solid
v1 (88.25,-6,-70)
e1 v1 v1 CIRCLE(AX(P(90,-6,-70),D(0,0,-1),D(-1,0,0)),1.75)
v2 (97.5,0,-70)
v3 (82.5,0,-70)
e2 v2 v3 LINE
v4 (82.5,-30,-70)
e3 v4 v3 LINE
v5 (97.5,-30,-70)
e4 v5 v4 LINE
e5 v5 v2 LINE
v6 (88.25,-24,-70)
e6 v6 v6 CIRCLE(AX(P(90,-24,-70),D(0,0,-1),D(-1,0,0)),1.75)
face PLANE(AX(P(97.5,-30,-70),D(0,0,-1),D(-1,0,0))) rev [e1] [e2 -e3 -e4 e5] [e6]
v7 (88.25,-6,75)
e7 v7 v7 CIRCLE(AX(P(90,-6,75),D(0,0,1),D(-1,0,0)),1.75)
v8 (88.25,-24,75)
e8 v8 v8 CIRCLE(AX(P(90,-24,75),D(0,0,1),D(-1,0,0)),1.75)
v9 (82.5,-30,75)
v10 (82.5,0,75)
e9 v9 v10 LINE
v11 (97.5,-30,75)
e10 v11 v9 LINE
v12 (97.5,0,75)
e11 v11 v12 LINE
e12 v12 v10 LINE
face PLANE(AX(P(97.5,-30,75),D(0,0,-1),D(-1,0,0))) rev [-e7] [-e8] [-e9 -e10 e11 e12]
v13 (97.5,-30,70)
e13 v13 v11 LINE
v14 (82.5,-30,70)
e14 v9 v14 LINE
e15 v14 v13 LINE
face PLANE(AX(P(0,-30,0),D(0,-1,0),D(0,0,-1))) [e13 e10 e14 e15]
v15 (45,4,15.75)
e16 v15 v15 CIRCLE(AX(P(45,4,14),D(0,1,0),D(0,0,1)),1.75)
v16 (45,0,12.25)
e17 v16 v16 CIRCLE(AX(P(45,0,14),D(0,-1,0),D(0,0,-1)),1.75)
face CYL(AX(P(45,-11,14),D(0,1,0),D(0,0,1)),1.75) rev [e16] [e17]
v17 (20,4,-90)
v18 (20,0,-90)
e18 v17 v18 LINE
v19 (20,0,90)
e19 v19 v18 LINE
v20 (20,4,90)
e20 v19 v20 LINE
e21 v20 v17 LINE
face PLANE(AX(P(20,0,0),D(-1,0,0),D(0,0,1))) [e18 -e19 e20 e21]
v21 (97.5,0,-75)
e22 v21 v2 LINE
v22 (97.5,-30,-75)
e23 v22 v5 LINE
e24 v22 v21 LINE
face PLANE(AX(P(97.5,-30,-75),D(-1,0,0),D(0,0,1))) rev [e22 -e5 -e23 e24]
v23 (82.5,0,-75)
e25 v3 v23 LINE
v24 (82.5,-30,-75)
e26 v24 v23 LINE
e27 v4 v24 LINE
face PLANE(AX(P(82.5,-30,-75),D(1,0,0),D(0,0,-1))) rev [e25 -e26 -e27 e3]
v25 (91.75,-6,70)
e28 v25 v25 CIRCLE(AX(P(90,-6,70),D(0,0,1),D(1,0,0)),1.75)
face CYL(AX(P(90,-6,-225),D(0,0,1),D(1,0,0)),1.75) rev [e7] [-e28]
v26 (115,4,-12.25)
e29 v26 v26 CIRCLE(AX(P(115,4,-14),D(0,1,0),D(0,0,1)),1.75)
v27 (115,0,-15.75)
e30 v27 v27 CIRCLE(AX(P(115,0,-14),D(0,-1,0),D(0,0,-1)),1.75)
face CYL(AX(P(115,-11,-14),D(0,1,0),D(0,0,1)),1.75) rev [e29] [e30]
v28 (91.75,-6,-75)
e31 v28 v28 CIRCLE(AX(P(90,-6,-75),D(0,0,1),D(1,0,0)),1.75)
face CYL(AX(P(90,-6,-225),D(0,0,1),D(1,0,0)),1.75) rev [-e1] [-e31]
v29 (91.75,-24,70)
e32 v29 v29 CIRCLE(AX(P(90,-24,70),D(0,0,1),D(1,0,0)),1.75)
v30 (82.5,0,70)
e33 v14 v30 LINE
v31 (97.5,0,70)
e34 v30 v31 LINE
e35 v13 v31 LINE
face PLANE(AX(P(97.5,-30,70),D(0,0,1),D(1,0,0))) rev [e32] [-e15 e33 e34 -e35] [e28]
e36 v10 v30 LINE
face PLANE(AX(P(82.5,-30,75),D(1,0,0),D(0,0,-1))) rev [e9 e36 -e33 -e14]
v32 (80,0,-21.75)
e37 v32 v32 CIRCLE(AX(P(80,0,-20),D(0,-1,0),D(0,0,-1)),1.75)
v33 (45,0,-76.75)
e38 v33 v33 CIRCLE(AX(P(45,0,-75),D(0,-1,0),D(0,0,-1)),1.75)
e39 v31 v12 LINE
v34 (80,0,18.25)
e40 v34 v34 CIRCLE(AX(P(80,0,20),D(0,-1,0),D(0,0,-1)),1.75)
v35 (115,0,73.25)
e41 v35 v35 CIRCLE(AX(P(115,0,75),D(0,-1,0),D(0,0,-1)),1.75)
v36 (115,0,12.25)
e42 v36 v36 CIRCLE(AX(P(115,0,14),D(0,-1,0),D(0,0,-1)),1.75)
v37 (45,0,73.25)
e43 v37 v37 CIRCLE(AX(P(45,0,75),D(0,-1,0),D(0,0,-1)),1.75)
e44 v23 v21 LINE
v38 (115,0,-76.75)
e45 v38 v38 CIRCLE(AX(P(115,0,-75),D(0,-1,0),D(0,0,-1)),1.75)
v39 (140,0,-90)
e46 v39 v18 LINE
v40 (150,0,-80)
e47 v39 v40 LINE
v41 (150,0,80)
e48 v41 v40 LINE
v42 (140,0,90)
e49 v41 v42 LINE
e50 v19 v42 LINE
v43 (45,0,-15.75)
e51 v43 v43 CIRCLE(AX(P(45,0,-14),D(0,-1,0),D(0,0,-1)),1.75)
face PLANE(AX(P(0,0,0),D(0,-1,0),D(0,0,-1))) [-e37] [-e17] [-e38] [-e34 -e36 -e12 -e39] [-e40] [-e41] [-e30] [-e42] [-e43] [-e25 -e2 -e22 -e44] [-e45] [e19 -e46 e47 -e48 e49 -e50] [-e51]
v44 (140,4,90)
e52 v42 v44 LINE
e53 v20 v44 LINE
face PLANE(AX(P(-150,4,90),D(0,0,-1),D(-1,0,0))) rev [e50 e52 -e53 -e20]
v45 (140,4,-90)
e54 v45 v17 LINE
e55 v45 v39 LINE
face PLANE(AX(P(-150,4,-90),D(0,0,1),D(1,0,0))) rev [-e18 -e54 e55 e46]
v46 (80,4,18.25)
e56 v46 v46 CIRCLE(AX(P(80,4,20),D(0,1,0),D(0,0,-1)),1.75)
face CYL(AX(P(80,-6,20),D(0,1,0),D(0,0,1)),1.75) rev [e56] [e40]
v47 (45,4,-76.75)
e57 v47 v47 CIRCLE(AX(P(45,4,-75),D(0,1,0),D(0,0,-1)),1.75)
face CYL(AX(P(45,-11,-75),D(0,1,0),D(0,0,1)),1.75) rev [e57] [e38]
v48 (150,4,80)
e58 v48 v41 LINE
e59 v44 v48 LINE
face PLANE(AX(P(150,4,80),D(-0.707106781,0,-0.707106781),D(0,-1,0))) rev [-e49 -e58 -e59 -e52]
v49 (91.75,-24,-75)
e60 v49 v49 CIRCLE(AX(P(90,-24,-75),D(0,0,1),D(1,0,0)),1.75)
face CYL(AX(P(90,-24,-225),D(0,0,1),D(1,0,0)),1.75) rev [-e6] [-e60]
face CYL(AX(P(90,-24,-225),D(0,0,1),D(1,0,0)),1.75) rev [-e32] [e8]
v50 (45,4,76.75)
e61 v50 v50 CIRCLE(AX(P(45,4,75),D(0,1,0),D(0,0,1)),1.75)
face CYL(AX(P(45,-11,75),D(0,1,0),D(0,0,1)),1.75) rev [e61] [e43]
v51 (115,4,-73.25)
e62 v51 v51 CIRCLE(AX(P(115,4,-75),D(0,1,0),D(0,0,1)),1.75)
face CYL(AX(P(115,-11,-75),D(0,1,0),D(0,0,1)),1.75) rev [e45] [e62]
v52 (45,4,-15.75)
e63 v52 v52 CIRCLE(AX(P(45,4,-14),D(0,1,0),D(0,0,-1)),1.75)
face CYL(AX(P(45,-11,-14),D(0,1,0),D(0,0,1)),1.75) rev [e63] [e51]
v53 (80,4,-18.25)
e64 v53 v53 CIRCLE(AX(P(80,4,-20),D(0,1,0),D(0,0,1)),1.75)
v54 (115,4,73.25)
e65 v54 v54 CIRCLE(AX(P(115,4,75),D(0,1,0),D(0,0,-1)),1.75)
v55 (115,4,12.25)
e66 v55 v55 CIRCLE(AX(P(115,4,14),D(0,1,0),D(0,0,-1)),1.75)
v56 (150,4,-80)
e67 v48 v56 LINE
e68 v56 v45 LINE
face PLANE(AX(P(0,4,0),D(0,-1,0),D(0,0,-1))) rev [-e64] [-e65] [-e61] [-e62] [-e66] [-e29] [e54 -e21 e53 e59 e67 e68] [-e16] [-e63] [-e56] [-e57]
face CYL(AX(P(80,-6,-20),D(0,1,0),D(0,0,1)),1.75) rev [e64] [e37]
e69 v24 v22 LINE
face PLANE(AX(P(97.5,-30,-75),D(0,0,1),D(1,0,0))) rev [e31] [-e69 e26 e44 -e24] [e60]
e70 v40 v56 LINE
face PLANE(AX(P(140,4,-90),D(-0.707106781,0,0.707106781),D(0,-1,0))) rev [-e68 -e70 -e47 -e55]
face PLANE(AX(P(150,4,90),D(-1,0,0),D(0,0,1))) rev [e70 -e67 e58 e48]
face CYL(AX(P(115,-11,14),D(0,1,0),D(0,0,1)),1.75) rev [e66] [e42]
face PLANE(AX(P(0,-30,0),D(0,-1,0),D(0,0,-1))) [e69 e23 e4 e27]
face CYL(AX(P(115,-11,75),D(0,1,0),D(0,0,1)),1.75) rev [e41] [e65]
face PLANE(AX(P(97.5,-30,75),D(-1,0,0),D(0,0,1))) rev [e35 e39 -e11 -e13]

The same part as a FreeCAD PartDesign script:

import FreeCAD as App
import Part
import Sketcher


def edges_at(feature, points):
    """Names of the edges that pass closest to the given points."""
    edges = feature.Shape.Edges
    near = lambda p: min(range(len(edges)), key=lambda i: edges[i].distToShape(Part.Vertex(*p))[0])
    return sorted({f"Edge{near(p) + 1}" for p in points})


def add_polygon(sketch, points):
    """Adds a closed chain of lines whose ends are joined by coincident constraints."""
    first, n = sketch.GeometryCount, len(points)
    for a, b in zip(points, points[1:] + points[:1]):
        sketch.addGeometry(Part.LineSegment(App.Vector(*a, 0), App.Vector(*b, 0)), False)
    for i in range(n):
        sketch.addConstraint(Sketcher.Constraint("Coincident", first + i, 2, first + (i + 1) % n, 1))

doc = App.newDocument("Part")
body = doc.addObject("PartDesign::Body", "Body")

sketch1 = body.newObject("Sketcher::SketchObject", "Sketch")
sketch1.AttachmentSupport = (doc.getObject("XZ_Plane"), [""])
sketch1.MapMode = "FlatFace"
add_polygon(sketch1, [(-150, -90), (-150, 90), (150, 90), (150, -90)])
sketch1.addConstraint(Sketcher.Constraint("Vertical", 0))
sketch1.addConstraint(Sketcher.Constraint("Horizontal", 1))
sketch1.addConstraint(Sketcher.Constraint("Vertical", 2))
sketch1.addConstraint(Sketcher.Constraint("Horizontal", 3))
sketch1.addConstraint(Sketcher.Constraint("Symmetric", 0, 2, 2, 2, -1, 1))
sketch1.addConstraint(Sketcher.Constraint("DistanceX", 1, 1, 1, 2, 300.0))
sketch1.addConstraint(Sketcher.Constraint("DistanceY", 0, 1, 0, 2, 180.0))
pad1 = body.newObject("PartDesign::Pad", "Pad")
pad1.Profile = sketch1
pad1.Length = 4
pad1.Reversed = True
doc.recompute()

fillet = body.newObject("PartDesign::Fillet", "Fillet")
fillet.Base = (pad1, edges_at(pad1, [(-150, 2, 90), (-150, 2, -90)]))
fillet.Radius = 10
doc.recompute()

chamfer = body.newObject("PartDesign::Chamfer", "Chamfer")
chamfer.Base = (fillet, edges_at(fillet, [(150, 2, 90), (150, 2, -90)]))
chamfer.Size = 10

sketch2 = body.newObject("Sketcher::SketchObject", "Sketch001")
sketch2.AttachmentSupport = (doc.getObject("XZ_Plane"), [""])
sketch2.MapMode = "FlatFace"
sketch2.AttachmentOffset = App.Placement(App.Vector(0, 0, -4), App.Rotation())
sketch2.addGeometry(Part.Circle(App.Vector(115, -75, 0), App.Vector(0, 0, 1), 1.75), False)
sketch2.addGeometry(Part.Circle(App.Vector(115, -14, 0), App.Vector(0, 0, 1), 1.75), False)
sketch2.addGeometry(Part.Circle(App.Vector(115, 14, 0), App.Vector(0, 0, 1), 1.75), False)
sketch2.addGeometry(Part.Circle(App.Vector(115, 75, 0), App.Vector(0, 0, 1), 1.75), False)
sketch2.addGeometry(Part.Circle(App.Vector(45, 75, 0), App.Vector(0, 0, 1), 1.75), False)
sketch2.addGeometry(Part.Circle(App.Vector(45, 14, 0), App.Vector(0, 0, 1), 1.75), False)
sketch2.addGeometry(Part.Circle(App.Vector(45, -14, 0), App.Vector(0, 0, 1), 1.75), False)
sketch2.addGeometry(Part.Circle(App.Vector(45, -75, 0), App.Vector(0, 0, 1), 1.75), False)
sketch2.addConstraint(Sketcher.Constraint("Equal", 0, 1))
sketch2.addConstraint(Sketcher.Constraint("Equal", 1, 2))
sketch2.addConstraint(Sketcher.Constraint("Equal", 2, 3))
sketch2.addConstraint(Sketcher.Constraint("Equal", 3, 4))
sketch2.addConstraint(Sketcher.Constraint("Equal", 4, 5))
sketch2.addConstraint(Sketcher.Constraint("Equal", 5, 6))
sketch2.addConstraint(Sketcher.Constraint("Equal", 6, 7))
sketch2.addConstraint(Sketcher.Constraint("Symmetric", 1, 3, 2, 3, -1))
sketch2.addConstraint(Sketcher.Constraint("Symmetric", 0, 3, 3, 3, -1))
sketch2.addConstraint(Sketcher.Constraint("Symmetric", 5, 3, 6, 3, -1))
sketch2.addConstraint(Sketcher.Constraint("Symmetric", 4, 3, 7, 3, -1))
sketch2.addConstraint(Sketcher.Constraint("Horizontal", 3, 3, 4, 3))
sketch2.addConstraint(Sketcher.Constraint("Horizontal", 2, 3, 5, 3))
sketch2.addConstraint(Sketcher.Constraint("Vertical", 0, 3, 1, 3))
sketch2.addConstraint(Sketcher.Constraint("Vertical", 4, 3, 5, 3))
sketch2.addConstraint(Sketcher.Constraint("Diameter", 0, 3.5))
sketch2.addConstraint(Sketcher.Constraint("DistanceX", -1, 1, 0, 3, 115.0))
sketch2.addConstraint(Sketcher.Constraint("DistanceY", 0, 3, -1, 1, 75.0))
sketch2.addConstraint(Sketcher.Constraint("DistanceY", 1, 3, -1, 1, 14.0))
sketch2.addConstraint(Sketcher.Constraint("DistanceX", -1, 1, 4, 3, 45.0))
pocket1 = body.newObject("PartDesign::Pocket", "Pocket")
pocket1.Profile = sketch2
pocket1.Length = 15
pocket1.Reversed = True

sketch3 = body.newObject("Sketcher::SketchObject", "Sketch002")
sketch3.AttachmentSupport = (doc.getObject("XZ_Plane"), [""])
sketch3.MapMode = "FlatFace"
sketch3.AttachmentOffset = App.Placement(App.Vector(0, 0, -4), App.Rotation())
sketch3.addGeometry(Part.Circle(App.Vector(-37, -18.5, 0), App.Vector(0, 0, 1), 1.75), False)
sketch3.addGeometry(Part.Circle(App.Vector(0, -18.5, 0), App.Vector(0, 0, 1), 1.75), False)
sketch3.addGeometry(Part.Circle(App.Vector(-37, 18.5, 0), App.Vector(0, 0, 1), 1.75), False)
sketch3.addGeometry(Part.Circle(App.Vector(0, 18.5, 0), App.Vector(0, 0, 1), 1.75), False)
add_polygon(sketch3, [(-20, 33.5), (-20, 43.5), (-5, 43.5), (-5, 33.5)])
add_polygon(sketch3, [(-20, -43.5), (-20, -33.5), (-5, -33.5), (-5, -43.5)])
sketch3.addConstraint(Sketcher.Constraint("Vertical", 4))
sketch3.addConstraint(Sketcher.Constraint("Horizontal", 5))
sketch3.addConstraint(Sketcher.Constraint("Vertical", 6))
sketch3.addConstraint(Sketcher.Constraint("Horizontal", 7))
sketch3.addConstraint(Sketcher.Constraint("Vertical", 8))
sketch3.addConstraint(Sketcher.Constraint("Horizontal", 9))
sketch3.addConstraint(Sketcher.Constraint("Vertical", 10))
sketch3.addConstraint(Sketcher.Constraint("Horizontal", 11))
sketch3.addConstraint(Sketcher.Constraint("Equal", 0, 1))
sketch3.addConstraint(Sketcher.Constraint("Equal", 1, 2))
sketch3.addConstraint(Sketcher.Constraint("Equal", 2, 3))
sketch3.addConstraint(Sketcher.Constraint("Symmetric", 1, 3, 3, 3, -1, 1))
sketch3.addConstraint(Sketcher.Constraint("Symmetric", 0, 3, 2, 3, -1))
sketch3.addConstraint(Sketcher.Constraint("Symmetric", 7, 2, 8, 2, -1))
sketch3.addConstraint(Sketcher.Constraint("Symmetric", 5, 2, 10, 2, -1))
sketch3.addConstraint(Sketcher.Constraint("PointOnObject", 1, 3, -2))
sketch3.addConstraint(Sketcher.Constraint("Horizontal", 0, 3, 1, 3))
sketch3.addConstraint(Sketcher.Constraint("Diameter", 0, 3.5))
sketch3.addConstraint(Sketcher.Constraint("DistanceX", 5, 1, 5, 2, 15.0))
sketch3.addConstraint(Sketcher.Constraint("DistanceY", 4, 1, 4, 2, 10.0))
sketch3.addConstraint(Sketcher.Constraint("DistanceX", 0, 3, -1, 1, 37.0))
sketch3.addConstraint(Sketcher.Constraint("DistanceX", 4, 2, -1, 1, 20.0))
sketch3.addConstraint(Sketcher.Constraint("DistanceY", 0, 3, 2, 3, 37.0))
sketch3.addConstraint(Sketcher.Constraint("DistanceY", 2, 3, 4, 2, 25.0))
pocket2 = body.newObject("PartDesign::Pocket", "Pocket001")
pocket2.Profile = sketch3
pocket2.Length = 15
pocket2.Reversed = True

sketch4 = body.newObject("Sketcher::SketchObject", "Sketch003")
sketch4.AttachmentSupport = (doc.getObject("XZ_Plane"), [""])
sketch4.MapMode = "FlatFace"
sketch4.AttachmentOffset = App.Placement(App.Vector(0, 0, -4), App.Rotation())
sketch4.addGeometry(Part.Circle(App.Vector(-33, -70, 0), App.Vector(0, 0, 1), 1.75), False)
sketch4.addGeometry(Part.Circle(App.Vector(-3, -54, 0), App.Vector(0, 0, 1), 1.75), False)
sketch4.addGeometry(Part.Circle(App.Vector(-33, 54, 0), App.Vector(0, 0, 1), 1.75), False)
sketch4.addGeometry(Part.Circle(App.Vector(-3, 70, 0), App.Vector(0, 0, 1), 1.75), False)
sketch4.addConstraint(Sketcher.Constraint("Equal", 0, 1))
sketch4.addConstraint(Sketcher.Constraint("Equal", 1, 2))
sketch4.addConstraint(Sketcher.Constraint("Equal", 2, 3))
sketch4.addConstraint(Sketcher.Constraint("Vertical", 0, 3, 2, 3))
sketch4.addConstraint(Sketcher.Constraint("Vertical", 1, 3, 3, 3))
sketch4.addConstraint(Sketcher.Constraint("Diameter", 0, 3.5))
sketch4.addConstraint(Sketcher.Constraint("DistanceX", 0, 3, -1, 1, 33.0))
sketch4.addConstraint(Sketcher.Constraint("DistanceY", 0, 3, -1, 1, 70.0))
sketch4.addConstraint(Sketcher.Constraint("DistanceX", 1, 3, -1, 1, 3.0))
sketch4.addConstraint(Sketcher.Constraint("DistanceY", 1, 3, -1, 1, 54.0))
sketch4.addConstraint(Sketcher.Constraint("DistanceY", -1, 1, 2, 3, 54.0))
sketch4.addConstraint(Sketcher.Constraint("DistanceY", -1, 1, 3, 3, 70.0))
pocket3 = body.newObject("PartDesign::Pocket", "Pocket002")
pocket3.Profile = sketch4
pocket3.Length = 15
pocket3.Reversed = True

sketch5 = body.newObject("Sketcher::SketchObject", "Sketch004")
sketch5.AttachmentSupport = (doc.getObject("XZ_Plane"), [""])
sketch5.MapMode = "FlatFace"
sketch5.AttachmentOffset = App.Placement(App.Vector(0, 0, -4), App.Rotation())
sketch5.addGeometry(Part.Circle(App.Vector(-73, -65, 0), App.Vector(0, 0, 1), 1.55), False)
sketch5.addGeometry(Part.Circle(App.Vector(-73, -19, 0), App.Vector(0, 0, 1), 1.55), False)
sketch5.addGeometry(Part.Circle(App.Vector(-91, -19, 0), App.Vector(0, 0, 1), 1.55), False)
sketch5.addConstraint(Sketcher.Constraint("Equal", 0, 1))
sketch5.addConstraint(Sketcher.Constraint("Equal", 1, 2))
sketch5.addConstraint(Sketcher.Constraint("Horizontal", 1, 3, 2, 3))
sketch5.addConstraint(Sketcher.Constraint("Vertical", 0, 3, 1, 3))
sketch5.addConstraint(Sketcher.Constraint("Diameter", 0, 3.1))
sketch5.addConstraint(Sketcher.Constraint("DistanceX", 0, 3, -1, 1, 73.0))
sketch5.addConstraint(Sketcher.Constraint("DistanceY", 0, 3, -1, 1, 65.0))
sketch5.addConstraint(Sketcher.Constraint("DistanceY", 1, 3, -1, 1, 19.0))
sketch5.addConstraint(Sketcher.Constraint("DistanceX", 2, 3, -1, 1, 91.0))
pocket4 = body.newObject("PartDesign::Pocket", "Pocket003")
pocket4.Profile = sketch5
pocket4.Length = 15
pocket4.Reversed = True

sketch6 = body.newObject("Sketcher::SketchObject", "Sketch005")
sketch6.AttachmentSupport = (doc.getObject("XZ_Plane"), [""])
sketch6.MapMode = "FlatFace"
sketch6.AttachmentOffset = App.Placement(App.Vector(0, 0, -4), App.Rotation())
sketch6.addGeometry(Part.Circle(App.Vector(-103, 54, 0), App.Vector(0, 0, 1), 1.75), False)
sketch6.addGeometry(Part.Circle(App.Vector(-68, 54, 0), App.Vector(0, 0, 1), 1.75), False)
sketch6.addConstraint(Sketcher.Constraint("Equal", 0, 1))
sketch6.addConstraint(Sketcher.Constraint("Horizontal", 0, 3, 1, 3))
sketch6.addConstraint(Sketcher.Constraint("Diameter", 0, 3.5))
sketch6.addConstraint(Sketcher.Constraint("DistanceX", 0, 3, -1, 1, 103.0))
sketch6.addConstraint(Sketcher.Constraint("DistanceY", -1, 1, 0, 3, 54.0))
sketch6.addConstraint(Sketcher.Constraint("DistanceX", 1, 3, -1, 1, 68.0))
pocket5 = body.newObject("PartDesign::Pocket", "Pocket004")
pocket5.Profile = sketch6
pocket5.Length = 15
pocket5.Reversed = True

sketch7 = body.newObject("Sketcher::SketchObject", "Sketch006")
sketch7.AttachmentSupport = (doc.getObject("XZ_Plane"), [""])
sketch7.MapMode = "FlatFace"
add_polygon(sketch7, [(-97.5, 75), (-97.5, 70), (-82.5, 70), (-82.5, 75)])
add_polygon(sketch7, [(82.5, 75), (82.5, 70), (97.5, 70), (97.5, 75)])
add_polygon(sketch7, [(82.5, -70), (82.5, -75), (97.5, -75), (97.5, -70)])
add_polygon(sketch7, [(-97.5, -70), (-97.5, -75), (-82.5, -75), (-82.5, -70)])
sketch7.addConstraint(Sketcher.Constraint("Vertical", 0))
sketch7.addConstraint(Sketcher.Constraint("Horizontal", 1))
sketch7.addConstraint(Sketcher.Constraint("Vertical", 2))
sketch7.addConstraint(Sketcher.Constraint("Horizontal", 3))
sketch7.addConstraint(Sketcher.Constraint("Vertical", 4))
sketch7.addConstraint(Sketcher.Constraint("Horizontal", 5))
sketch7.addConstraint(Sketcher.Constraint("Vertical", 6))
sketch7.addConstraint(Sketcher.Constraint("Horizontal", 7))
sketch7.addConstraint(Sketcher.Constraint("Vertical", 8))
sketch7.addConstraint(Sketcher.Constraint("Horizontal", 9))
sketch7.addConstraint(Sketcher.Constraint("Vertical", 10))
sketch7.addConstraint(Sketcher.Constraint("Horizontal", 11))
sketch7.addConstraint(Sketcher.Constraint("Vertical", 12))
sketch7.addConstraint(Sketcher.Constraint("Horizontal", 13))
sketch7.addConstraint(Sketcher.Constraint("Vertical", 14))
sketch7.addConstraint(Sketcher.Constraint("Horizontal", 15))
sketch7.addConstraint(Sketcher.Constraint("Symmetric", 2, 2, 8, 2, -1, 1))
sketch7.addConstraint(Sketcher.Constraint("Symmetric", 0, 2, 10, 2, -1, 1))
sketch7.addConstraint(Sketcher.Constraint("Symmetric", 6, 2, 12, 2, -1, 1))
sketch7.addConstraint(Sketcher.Constraint("Symmetric", 4, 2, 14, 2, -1, 1))
sketch7.addConstraint(Sketcher.Constraint("Symmetric", 1, 2, 4, 2, -2))
sketch7.addConstraint(Sketcher.Constraint("Symmetric", 3, 2, 6, 2, -2))
sketch7.addConstraint(Sketcher.Constraint("DistanceX", 1, 1, 1, 2, 15.0))
sketch7.addConstraint(Sketcher.Constraint("DistanceY", 0, 2, 0, 1, 5.0))
sketch7.addConstraint(Sketcher.Constraint("DistanceY", -1, 1, 0, 2, 70.0))
sketch7.addConstraint(Sketcher.Constraint("DistanceX", 1, 2, 4, 2, 165.0))
pad2 = body.newObject("PartDesign::Pad", "Pad001")
pad2.Profile = sketch7
pad2.Length = 30

sketch8 = body.newObject("Sketcher::SketchObject", "Sketch007")
sketch8.AttachmentSupport = (doc.getObject("XY_Plane"), [""])
sketch8.MapMode = "FlatFace"
sketch8.AttachmentOffset = App.Placement(App.Vector(0, 0, 75), App.Rotation())
sketch8.addGeometry(Part.Circle(App.Vector(-90, -24, 0), App.Vector(0, 0, 1), 1.75), False)
sketch8.addGeometry(Part.Circle(App.Vector(-90, -6, 0), App.Vector(0, 0, 1), 1.75), False)
sketch8.addGeometry(Part.Circle(App.Vector(90, -6, 0), App.Vector(0, 0, 1), 1.75), False)
sketch8.addGeometry(Part.Circle(App.Vector(90, -24, 0), App.Vector(0, 0, 1), 1.75), False)
sketch8.addConstraint(Sketcher.Constraint("Equal", 0, 1))
sketch8.addConstraint(Sketcher.Constraint("Equal", 1, 2))
sketch8.addConstraint(Sketcher.Constraint("Equal", 2, 3))
sketch8.addConstraint(Sketcher.Constraint("Symmetric", 1, 3, 2, 3, -2))
sketch8.addConstraint(Sketcher.Constraint("Symmetric", 0, 3, 3, 3, -2))
sketch8.addConstraint(Sketcher.Constraint("Vertical", 0, 3, 1, 3))
sketch8.addConstraint(Sketcher.Constraint("Diameter", 0, 3.5))
sketch8.addConstraint(Sketcher.Constraint("DistanceX", 0, 3, -1, 1, 90.0))
sketch8.addConstraint(Sketcher.Constraint("DistanceY", 0, 3, -1, 1, 24.0))
sketch8.addConstraint(Sketcher.Constraint("DistanceY", 1, 3, -1, 1, 6.0))
pocket6 = body.newObject("PartDesign::Pocket", "Pocket005")
pocket6.Profile = sketch8
pocket6.Length = 300

sketch9 = body.newObject("Sketcher::SketchObject", "Sketch008")
sketch9.AttachmentSupport = (doc.getObject("XZ_Plane"), [""])
sketch9.MapMode = "FlatFace"
sketch9.AttachmentOffset = App.Placement(App.Vector(0, 0, -4), App.Rotation())
sketch9.addGeometry(Part.Circle(App.Vector(-140, -10, 0), App.Vector(0, 0, 1), 1.75), False)
sketch9.addGeometry(Part.Circle(App.Vector(-125, -10, 0), App.Vector(0, 0, 1), 1.75), False)
sketch9.addGeometry(Part.Circle(App.Vector(-125, -30, 0), App.Vector(0, 0, 1), 1.75), False)
sketch9.addGeometry(Part.Circle(App.Vector(-140, -30, 0), App.Vector(0, 0, 1), 1.75), False)
sketch9.addGeometry(Part.Circle(App.Vector(-125, 30, 0), App.Vector(0, 0, 1), 1.75), False)
sketch9.addGeometry(Part.Circle(App.Vector(-140, 30, 0), App.Vector(0, 0, 1), 1.75), False)
sketch9.addGeometry(Part.Circle(App.Vector(-125, 10, 0), App.Vector(0, 0, 1), 1.75), False)
sketch9.addGeometry(Part.Circle(App.Vector(-140, 10, 0), App.Vector(0, 0, 1), 1.75), False)
add_polygon(sketch9, [(-100, -10), (-100, 10), (-70, 10), (-70, -10)])
sketch9.addConstraint(Sketcher.Constraint("Vertical", 8))
sketch9.addConstraint(Sketcher.Constraint("Horizontal", 9))
sketch9.addConstraint(Sketcher.Constraint("Vertical", 10))
sketch9.addConstraint(Sketcher.Constraint("Horizontal", 11))
sketch9.addConstraint(Sketcher.Constraint("Equal", 0, 1))
sketch9.addConstraint(Sketcher.Constraint("Equal", 1, 2))
sketch9.addConstraint(Sketcher.Constraint("Equal", 2, 3))
sketch9.addConstraint(Sketcher.Constraint("Equal", 3, 4))
sketch9.addConstraint(Sketcher.Constraint("Equal", 4, 5))
sketch9.addConstraint(Sketcher.Constraint("Equal", 5, 6))
sketch9.addConstraint(Sketcher.Constraint("Equal", 6, 7))
sketch9.addConstraint(Sketcher.Constraint("Symmetric", 2, 3, 4, 3, -1))
sketch9.addConstraint(Sketcher.Constraint("Symmetric", 3, 3, 5, 3, -1))
sketch9.addConstraint(Sketcher.Constraint("Symmetric", 1, 3, 6, 3, -1))
sketch9.addConstraint(Sketcher.Constraint("Symmetric", 0, 3, 7, 3, -1))
sketch9.addConstraint(Sketcher.Constraint("Horizontal", 0, 3, 1, 3))
sketch9.addConstraint(Sketcher.Constraint("Horizontal", 2, 3, 3, 3))
sketch9.addConstraint(Sketcher.Constraint("Horizontal", 7, 3, 8, 2))
sketch9.addConstraint(Sketcher.Constraint("Horizontal", 1, 3, 10, 2))
sketch9.addConstraint(Sketcher.Constraint("Vertical", 1, 3, 2, 3))
sketch9.addConstraint(Sketcher.Constraint("Vertical", 0, 3, 3, 3))
sketch9.addConstraint(Sketcher.Constraint("Diameter", 0, 3.5))
sketch9.addConstraint(Sketcher.Constraint("DistanceX", 9, 1, 9, 2, 30.0))
sketch9.addConstraint(Sketcher.Constraint("DistanceY", 8, 1, 8, 2, 20.0))
sketch9.addConstraint(Sketcher.Constraint("DistanceX", 0, 3, -1, 1, 140.0))
sketch9.addConstraint(Sketcher.Constraint("DistanceX", 1, 3, -1, 1, 125.0))
sketch9.addConstraint(Sketcher.Constraint("DistanceY", 2, 3, -1, 1, 30.0))
sketch9.addConstraint(Sketcher.Constraint("DistanceX", 8, 2, -1, 1, 100.0))
pocket7 = body.newObject("PartDesign::Pocket", "Pocket006")
pocket7.Profile = sketch9
pocket7.Length = 15
pocket7.Reversed = True

sketch10 = body.newObject("Sketcher::SketchObject", "Sketch009")
sketch10.AttachmentSupport = (doc.getObject("XZ_Plane"), [""])
sketch10.MapMode = "FlatFace"
add_polygon(sketch10, [(-153, 113), (-153, 38), (-113, 38), (-113, 113)])
add_polygon(sketch10, [(-153, -38), (-153, -113), (-113, -113), (-113, -38)])
sketch10.addConstraint(Sketcher.Constraint("Vertical", 0))
sketch10.addConstraint(Sketcher.Constraint("Horizontal", 1))
sketch10.addConstraint(Sketcher.Constraint("Vertical", 2))
sketch10.addConstraint(Sketcher.Constraint("Horizontal", 3))
sketch10.addConstraint(Sketcher.Constraint("Vertical", 4))
sketch10.addConstraint(Sketcher.Constraint("Horizontal", 5))
sketch10.addConstraint(Sketcher.Constraint("Vertical", 6))
sketch10.addConstraint(Sketcher.Constraint("Horizontal", 7))
sketch10.addConstraint(Sketcher.Constraint("Symmetric", 3, 2, 4, 2, -1))
sketch10.addConstraint(Sketcher.Constraint("Symmetric", 1, 2, 6, 2, -1))
sketch10.addConstraint(Sketcher.Constraint("DistanceX", 1, 1, 1, 2, 40.0))
sketch10.addConstraint(Sketcher.Constraint("DistanceY", 0, 2, 0, 1, 75.0))
sketch10.addConstraint(Sketcher.Constraint("DistanceX", 0, 2, -1, 1, 153.0))
sketch10.addConstraint(Sketcher.Constraint("DistanceY", -1, 1, 0, 2, 38.0))
pocket8 = body.newObject("PartDesign::Pocket", "Pocket007")
pocket8.Profile = sketch10
pocket8.Length = 10
doc.recompute()

fillet2 = body.newObject("PartDesign::Fillet", "Fillet001")
fillet2.Base = (pocket8, edges_at(pocket8, [
    (-113, 2, 90),
    (-150, 2, 38),
    (-113, 2, 38),
    (-113, 2, -90),
    (-113, 2, -38),
    (-150, 2, -38),
]))
fillet2.Radius = 10

sketch11 = body.newObject("Sketcher::SketchObject", "Sketch010")
sketch11.AttachmentSupport = (doc.getObject("XZ_Plane"), [""])
sketch11.MapMode = "FlatFace"
sketch11.AttachmentOffset = App.Placement(App.Vector(0, 0, -4), App.Rotation())
sketch11.addGeometry(Part.Circle(App.Vector(80, -20, 0), App.Vector(0, 0, 1), 1.75), False)
sketch11.addGeometry(Part.Circle(App.Vector(80, 20, 0), App.Vector(0, 0, 1), 1.75), False)
sketch11.addGeometry(Part.Circle(App.Vector(-20, 20, 0), App.Vector(0, 0, 1), 1.75), False)
sketch11.addGeometry(Part.Circle(App.Vector(-20, -20, 0), App.Vector(0, 0, 1), 1.75), False)
sketch11.addConstraint(Sketcher.Constraint("Equal", 0, 1))
sketch11.addConstraint(Sketcher.Constraint("Equal", 1, 2))
sketch11.addConstraint(Sketcher.Constraint("Equal", 2, 3))
sketch11.addConstraint(Sketcher.Constraint("Symmetric", 0, 3, 1, 3, -1))
sketch11.addConstraint(Sketcher.Constraint("Symmetric", 2, 3, 3, 3, -1))
sketch11.addConstraint(Sketcher.Constraint("Horizontal", 1, 3, 2, 3))
sketch11.addConstraint(Sketcher.Constraint("Diameter", 0, 3.5))
sketch11.addConstraint(Sketcher.Constraint("DistanceX", -1, 1, 0, 3, 80.0))
sketch11.addConstraint(Sketcher.Constraint("DistanceY", 0, 3, -1, 1, 20.0))
sketch11.addConstraint(Sketcher.Constraint("DistanceX", 2, 3, -1, 1, 20.0))
pocket9 = body.newObject("PartDesign::Pocket", "Pocket008")
pocket9.Profile = sketch11
pocket9.Length = 10
pocket9.Reversed = True

sketch12 = body.newObject("Sketcher::SketchObject", "Sketch011")
sketch12.AttachmentSupport = (doc.getObject("YZ_Plane"), [""])
sketch12.MapMode = "FlatFace"
sketch12.AttachmentOffset = App.Placement(App.Vector(0, 0, 20), App.Rotation())
add_polygon(sketch12, [(39.275782, -105.005807), (-58.206244, -105.005807), (-58.206244, 107.132092), (39.275782, 107.132092)])
sketch12.addConstraint(Sketcher.Constraint("Horizontal", 0))
sketch12.addConstraint(Sketcher.Constraint("Vertical", 1))
sketch12.addConstraint(Sketcher.Constraint("Horizontal", 2))
sketch12.addConstraint(Sketcher.Constraint("Vertical", 3))
sketch12.addConstraint(Sketcher.Constraint("DistanceY", 1, 1, 1, 2, 212.137899))
sketch12.addConstraint(Sketcher.Constraint("DistanceX", 0, 2, 0, 1, 97.482026))
sketch12.addConstraint(Sketcher.Constraint("DistanceX", 0, 2, -1, 1, 58.206244))
sketch12.addConstraint(Sketcher.Constraint("DistanceY", 0, 2, -1, 1, 105.005807))
pocket10 = body.newObject("PartDesign::Pocket", "Pocket009")
pocket10.Profile = sketch12
pocket10.Length = 200

doc.recompute()
